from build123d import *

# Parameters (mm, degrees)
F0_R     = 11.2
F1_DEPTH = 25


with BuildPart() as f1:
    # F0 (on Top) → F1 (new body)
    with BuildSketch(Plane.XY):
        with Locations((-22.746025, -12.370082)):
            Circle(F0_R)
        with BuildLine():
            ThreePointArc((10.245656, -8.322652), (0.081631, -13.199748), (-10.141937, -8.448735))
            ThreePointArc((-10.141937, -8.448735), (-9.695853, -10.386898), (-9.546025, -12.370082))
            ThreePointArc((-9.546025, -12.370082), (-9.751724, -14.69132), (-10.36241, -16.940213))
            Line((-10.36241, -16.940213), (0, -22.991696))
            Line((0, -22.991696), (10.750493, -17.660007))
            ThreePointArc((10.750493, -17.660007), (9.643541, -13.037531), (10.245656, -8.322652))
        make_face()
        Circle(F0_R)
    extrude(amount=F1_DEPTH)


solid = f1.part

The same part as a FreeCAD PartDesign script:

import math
import FreeCAD as App
import Part
import Sketcher

doc = App.newDocument("Part")
body = doc.addObject("PartDesign::Body", "Body")
body.AllowCompound = True

# Sketch on XY plane
sketch1 = body.newObject("Sketcher::SketchObject", "Sketch")
sketch1.AttachmentSupport = (doc.getObject("XY_Plane"), [""])
sketch1.MapMode = "FlatFace"
sketch1.addGeometry(Part.Circle(App.Vector(-22.746025, -12.370082, 0), App.Vector(0, 0, 1), 11.2), False)
sketch1.addGeometry(Part.ArcOfCircle(Part.Circle(App.Vector(0, 0, 0), App.Vector(0, 0, 1), 13.2), math.radians(-140.204031), math.radians(-39.08731)), False)
sketch1.addGeometry(Part.ArcOfCircle(Part.Circle(App.Vector(-22.745993, -12.370078, 0), App.Vector(0, 0, 1), 13.199968), math.radians(-0.000019), math.radians(17.281833)), False)
sketch1.addGeometry(Part.ArcOfCircle(Part.Circle(App.Vector(-22.746036, -12.370082, 0), App.Vector(0, 0, 1), 13.200011), math.radians(-20.256394), math.radians(0)), False)
sketch1.addGeometry(Part.LineSegment(App.Vector(-10.36241, -16.940213, 0), App.Vector(0, -22.991696, 0)), False)
sketch1.addGeometry(Part.LineSegment(App.Vector(0, -22.991696, 0), App.Vector(10.750493, -17.660007, 0)), False)
sketch1.addGeometry(Part.ArcOfCircle(Part.Circle(App.Vector(22.824286, -12.324896, 0), App.Vector(0, 0, 1), 13.199996), math.radians(162.350073), math.radians(203.839452)), False)
sketch1.addGeometry(Part.Circle(App.Vector(0, 0, 0), App.Vector(0, 0, 1), 11.2), False)
sketch1.addConstraint(Sketcher.Constraint("Coincident", 1, 1, 2, 2))
sketch1.addConstraint(Sketcher.Constraint("Coincident", 2, 1, 3, 2))
sketch1.addConstraint(Sketcher.Constraint("Coincident", 3, 1, 4, 1))
sketch1.addConstraint(Sketcher.Constraint("Coincident", 4, 2, 5, 1))
sketch1.addConstraint(Sketcher.Constraint("Coincident", 5, 2, 6, 2))
sketch1.addConstraint(Sketcher.Constraint("Coincident", 6, 1, 1, 2))
sketch1.addConstraint(Sketcher.Constraint("Coincident", 1, 3, -1, 1))
sketch1.addConstraint(Sketcher.Constraint("Coincident", 7, 3, -1, 1))
sketch1.addConstraint(Sketcher.Constraint("PointOnObject", 4, 2, -2))
sketch1.addConstraint(Sketcher.Constraint("Diameter", 0, 22.4))
sketch1.addConstraint(Sketcher.Constraint("Diameter", 7, 22.4))
sketch1.addConstraint(Sketcher.Constraint("Radius", 1, 13.2))
sketch1.addConstraint(Sketcher.Constraint("Distance", 4, 11.999999))
sketch1.addConstraint(Sketcher.Constraint("Distance", 5, 12.0))
sketch1.addConstraint(Sketcher.Constraint("DistanceX", 0, 3, 2, 1, 13.2))
sketch1.addConstraint(Sketcher.Constraint("Radius", 3, 13.200011))
sketch1.addConstraint(Sketcher.Constraint("Radius", 2, 13.199968))
sketch1.addConstraint(Sketcher.Constraint("Radius", 6, 13.199996))
sketch1.addConstraint(Sketcher.Constraint("DistanceX", 3, 3, 1, 1, 12.604099))
sketch1.addConstraint(Sketcher.Constraint("DistanceY", 3, 3, -1, 1, 12.370082))
sketch1.addConstraint(Sketcher.Constraint("DistanceX", 3, 1, -1, 1, 10.36241))
sketch1.addConstraint(Sketcher.Constraint("DistanceY", 6, 1, -1, 1, 8.322652))
sketch1.addConstraint(Sketcher.Constraint("DistanceY", 0, 3, 1, 3, 12.370082))
sketch1.addConstraint(Sketcher.Constraint("DistanceX", 2, 3, 6, 3, 45.570279))
sketch1.addConstraint(Sketcher.Constraint("DistanceY", 2, 3, 6, 3, 0.045182))
sketch1.addConstraint(Sketcher.Constraint("DistanceY", 2, 1, 1, 3, 12.370082))
pad1 = body.newObject("PartDesign::Pad", "Pad")
pad1.Profile = sketch1
pad1.Length = 25

doc.recompute()
